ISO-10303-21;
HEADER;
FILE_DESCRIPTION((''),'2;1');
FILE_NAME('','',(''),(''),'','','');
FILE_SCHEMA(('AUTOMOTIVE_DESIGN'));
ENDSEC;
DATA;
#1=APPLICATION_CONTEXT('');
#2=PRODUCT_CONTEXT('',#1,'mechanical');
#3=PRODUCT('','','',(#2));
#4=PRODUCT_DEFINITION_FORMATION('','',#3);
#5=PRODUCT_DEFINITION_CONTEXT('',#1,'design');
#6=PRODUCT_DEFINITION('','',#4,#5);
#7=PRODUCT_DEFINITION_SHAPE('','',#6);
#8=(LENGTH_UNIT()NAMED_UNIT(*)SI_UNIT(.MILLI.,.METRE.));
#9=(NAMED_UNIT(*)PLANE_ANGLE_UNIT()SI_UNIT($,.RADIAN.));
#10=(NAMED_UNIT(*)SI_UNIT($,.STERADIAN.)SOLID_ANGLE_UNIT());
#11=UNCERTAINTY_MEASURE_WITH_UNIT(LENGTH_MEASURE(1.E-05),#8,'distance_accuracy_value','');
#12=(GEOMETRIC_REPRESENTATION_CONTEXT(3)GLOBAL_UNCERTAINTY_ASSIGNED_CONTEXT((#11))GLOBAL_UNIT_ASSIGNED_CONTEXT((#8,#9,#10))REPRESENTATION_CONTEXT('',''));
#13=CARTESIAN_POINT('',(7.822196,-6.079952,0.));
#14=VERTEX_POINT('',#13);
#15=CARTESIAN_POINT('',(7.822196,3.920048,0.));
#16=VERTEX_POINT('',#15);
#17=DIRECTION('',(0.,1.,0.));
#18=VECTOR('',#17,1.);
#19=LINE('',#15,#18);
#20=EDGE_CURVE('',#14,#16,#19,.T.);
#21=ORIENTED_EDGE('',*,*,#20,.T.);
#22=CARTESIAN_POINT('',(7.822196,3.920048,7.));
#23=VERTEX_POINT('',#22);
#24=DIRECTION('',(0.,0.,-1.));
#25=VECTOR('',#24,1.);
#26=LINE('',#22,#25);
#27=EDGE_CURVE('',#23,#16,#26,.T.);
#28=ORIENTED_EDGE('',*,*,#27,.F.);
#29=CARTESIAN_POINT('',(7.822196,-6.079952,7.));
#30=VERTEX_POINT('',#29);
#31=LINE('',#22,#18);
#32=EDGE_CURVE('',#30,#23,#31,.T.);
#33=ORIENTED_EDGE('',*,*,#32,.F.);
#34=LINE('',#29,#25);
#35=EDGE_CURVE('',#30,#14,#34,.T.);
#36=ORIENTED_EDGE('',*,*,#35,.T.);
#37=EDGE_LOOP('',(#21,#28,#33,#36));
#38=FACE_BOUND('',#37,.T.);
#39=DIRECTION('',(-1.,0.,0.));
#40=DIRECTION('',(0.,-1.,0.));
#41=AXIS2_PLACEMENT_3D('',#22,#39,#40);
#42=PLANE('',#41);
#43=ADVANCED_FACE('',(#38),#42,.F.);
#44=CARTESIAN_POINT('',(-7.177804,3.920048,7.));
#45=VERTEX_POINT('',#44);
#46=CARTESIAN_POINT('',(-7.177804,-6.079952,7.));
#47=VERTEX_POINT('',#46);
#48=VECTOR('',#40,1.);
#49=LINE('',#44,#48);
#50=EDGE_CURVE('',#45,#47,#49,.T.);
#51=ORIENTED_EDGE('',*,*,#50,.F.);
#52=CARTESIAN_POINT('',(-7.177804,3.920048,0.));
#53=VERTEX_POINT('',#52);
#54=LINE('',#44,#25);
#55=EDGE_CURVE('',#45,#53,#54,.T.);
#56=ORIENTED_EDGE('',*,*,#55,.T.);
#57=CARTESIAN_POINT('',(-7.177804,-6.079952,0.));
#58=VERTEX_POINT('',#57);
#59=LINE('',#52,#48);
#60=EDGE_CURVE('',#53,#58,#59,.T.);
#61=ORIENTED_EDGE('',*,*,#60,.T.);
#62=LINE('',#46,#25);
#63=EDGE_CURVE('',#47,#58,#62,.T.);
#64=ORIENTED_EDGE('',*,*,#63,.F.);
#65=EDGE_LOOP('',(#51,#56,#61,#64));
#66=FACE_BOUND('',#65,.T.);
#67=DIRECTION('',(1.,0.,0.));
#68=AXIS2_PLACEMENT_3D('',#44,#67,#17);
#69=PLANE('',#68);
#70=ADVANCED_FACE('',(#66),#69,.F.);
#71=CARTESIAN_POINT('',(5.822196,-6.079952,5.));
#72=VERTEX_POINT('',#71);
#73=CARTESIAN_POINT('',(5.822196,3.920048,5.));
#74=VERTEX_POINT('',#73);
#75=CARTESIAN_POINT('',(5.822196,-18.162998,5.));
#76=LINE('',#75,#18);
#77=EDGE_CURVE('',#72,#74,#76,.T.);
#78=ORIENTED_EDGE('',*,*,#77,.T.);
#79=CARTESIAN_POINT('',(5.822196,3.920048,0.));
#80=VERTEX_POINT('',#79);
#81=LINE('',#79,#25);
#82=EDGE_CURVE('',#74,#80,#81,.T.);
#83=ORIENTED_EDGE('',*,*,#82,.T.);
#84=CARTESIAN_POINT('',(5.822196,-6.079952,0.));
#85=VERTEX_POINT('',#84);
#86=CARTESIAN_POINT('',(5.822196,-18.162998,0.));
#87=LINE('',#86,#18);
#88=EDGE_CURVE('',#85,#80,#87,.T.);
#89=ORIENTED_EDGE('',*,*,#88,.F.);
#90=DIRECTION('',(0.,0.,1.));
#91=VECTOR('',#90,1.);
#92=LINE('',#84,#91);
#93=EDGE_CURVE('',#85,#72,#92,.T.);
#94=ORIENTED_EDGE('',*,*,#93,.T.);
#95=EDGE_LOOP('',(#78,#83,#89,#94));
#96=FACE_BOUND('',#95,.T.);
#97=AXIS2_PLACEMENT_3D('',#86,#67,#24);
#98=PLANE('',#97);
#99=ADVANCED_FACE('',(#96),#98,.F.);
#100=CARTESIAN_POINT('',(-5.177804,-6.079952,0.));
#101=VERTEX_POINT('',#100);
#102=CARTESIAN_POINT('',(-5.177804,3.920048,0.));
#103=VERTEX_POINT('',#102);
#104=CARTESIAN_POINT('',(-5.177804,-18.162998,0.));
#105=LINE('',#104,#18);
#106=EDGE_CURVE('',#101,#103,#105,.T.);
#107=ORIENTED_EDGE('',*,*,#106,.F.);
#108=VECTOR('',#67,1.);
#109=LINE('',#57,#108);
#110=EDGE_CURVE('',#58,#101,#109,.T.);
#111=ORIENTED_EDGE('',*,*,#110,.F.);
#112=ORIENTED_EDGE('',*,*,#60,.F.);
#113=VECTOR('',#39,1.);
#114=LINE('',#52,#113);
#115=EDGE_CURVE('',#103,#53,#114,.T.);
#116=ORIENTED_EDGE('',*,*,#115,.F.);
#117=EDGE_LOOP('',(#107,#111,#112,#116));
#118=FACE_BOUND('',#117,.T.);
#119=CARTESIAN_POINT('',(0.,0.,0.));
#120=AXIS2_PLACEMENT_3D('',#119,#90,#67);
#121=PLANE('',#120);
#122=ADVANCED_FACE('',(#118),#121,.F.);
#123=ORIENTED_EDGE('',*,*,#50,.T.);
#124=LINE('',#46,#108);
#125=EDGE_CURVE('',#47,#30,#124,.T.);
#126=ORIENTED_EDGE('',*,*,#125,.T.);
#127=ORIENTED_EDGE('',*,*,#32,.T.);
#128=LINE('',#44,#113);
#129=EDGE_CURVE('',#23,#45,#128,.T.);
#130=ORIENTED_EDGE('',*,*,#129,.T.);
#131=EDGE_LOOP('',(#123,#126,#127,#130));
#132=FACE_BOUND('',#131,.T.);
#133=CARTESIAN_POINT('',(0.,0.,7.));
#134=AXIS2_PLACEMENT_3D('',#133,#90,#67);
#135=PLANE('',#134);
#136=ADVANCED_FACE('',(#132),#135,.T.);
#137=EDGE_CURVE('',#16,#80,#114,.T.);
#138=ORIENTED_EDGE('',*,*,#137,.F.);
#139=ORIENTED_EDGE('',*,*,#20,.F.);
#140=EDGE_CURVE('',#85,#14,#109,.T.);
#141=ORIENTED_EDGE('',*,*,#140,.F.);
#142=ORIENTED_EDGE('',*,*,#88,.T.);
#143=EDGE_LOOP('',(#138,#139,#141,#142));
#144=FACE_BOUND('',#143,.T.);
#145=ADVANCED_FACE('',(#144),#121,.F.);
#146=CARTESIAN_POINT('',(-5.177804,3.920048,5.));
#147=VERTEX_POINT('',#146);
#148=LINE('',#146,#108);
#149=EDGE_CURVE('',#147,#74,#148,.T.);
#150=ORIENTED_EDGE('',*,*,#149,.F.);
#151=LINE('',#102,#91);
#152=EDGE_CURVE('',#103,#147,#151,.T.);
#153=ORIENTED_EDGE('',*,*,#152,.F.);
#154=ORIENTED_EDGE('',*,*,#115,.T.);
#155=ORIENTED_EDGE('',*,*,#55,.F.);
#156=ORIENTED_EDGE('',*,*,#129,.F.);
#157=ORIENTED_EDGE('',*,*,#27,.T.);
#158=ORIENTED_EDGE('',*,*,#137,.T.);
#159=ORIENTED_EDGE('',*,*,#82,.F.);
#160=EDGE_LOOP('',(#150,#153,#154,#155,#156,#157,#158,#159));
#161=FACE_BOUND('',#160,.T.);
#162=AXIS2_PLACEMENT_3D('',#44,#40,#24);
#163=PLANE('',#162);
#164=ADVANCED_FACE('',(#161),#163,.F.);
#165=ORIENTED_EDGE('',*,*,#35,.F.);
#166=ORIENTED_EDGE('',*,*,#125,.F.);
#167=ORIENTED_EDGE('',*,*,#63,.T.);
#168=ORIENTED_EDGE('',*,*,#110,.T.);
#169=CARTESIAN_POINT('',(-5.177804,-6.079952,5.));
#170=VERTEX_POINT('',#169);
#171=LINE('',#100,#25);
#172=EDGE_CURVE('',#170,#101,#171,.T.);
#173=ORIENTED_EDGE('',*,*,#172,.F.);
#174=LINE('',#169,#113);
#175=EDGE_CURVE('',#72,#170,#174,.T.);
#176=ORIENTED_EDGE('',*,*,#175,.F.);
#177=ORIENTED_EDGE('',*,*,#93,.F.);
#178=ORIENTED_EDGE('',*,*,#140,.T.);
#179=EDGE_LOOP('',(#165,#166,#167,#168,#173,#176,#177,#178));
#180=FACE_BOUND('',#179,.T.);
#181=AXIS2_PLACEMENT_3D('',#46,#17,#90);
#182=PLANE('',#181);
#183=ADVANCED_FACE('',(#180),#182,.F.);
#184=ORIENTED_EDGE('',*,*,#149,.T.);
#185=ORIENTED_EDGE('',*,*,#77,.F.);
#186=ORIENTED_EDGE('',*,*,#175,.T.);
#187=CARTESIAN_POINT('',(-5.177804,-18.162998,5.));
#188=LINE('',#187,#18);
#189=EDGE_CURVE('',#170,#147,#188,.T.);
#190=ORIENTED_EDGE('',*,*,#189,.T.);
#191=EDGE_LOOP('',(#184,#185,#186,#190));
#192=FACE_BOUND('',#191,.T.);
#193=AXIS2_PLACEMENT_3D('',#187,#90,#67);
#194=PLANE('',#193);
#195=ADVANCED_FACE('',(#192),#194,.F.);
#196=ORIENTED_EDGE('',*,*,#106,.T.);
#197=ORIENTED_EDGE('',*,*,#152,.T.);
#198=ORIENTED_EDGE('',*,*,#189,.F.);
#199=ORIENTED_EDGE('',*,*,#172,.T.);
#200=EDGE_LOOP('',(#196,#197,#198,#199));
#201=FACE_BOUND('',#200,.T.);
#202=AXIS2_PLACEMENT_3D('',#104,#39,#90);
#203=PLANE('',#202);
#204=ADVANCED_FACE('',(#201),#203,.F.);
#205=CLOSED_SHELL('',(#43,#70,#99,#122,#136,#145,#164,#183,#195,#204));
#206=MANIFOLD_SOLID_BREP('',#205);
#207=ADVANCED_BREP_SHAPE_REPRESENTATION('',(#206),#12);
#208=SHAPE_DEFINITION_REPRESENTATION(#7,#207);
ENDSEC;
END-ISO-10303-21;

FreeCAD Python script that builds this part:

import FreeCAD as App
import Part
import Sketcher
from FreeCAD import Vector
Q = App.Units.Quantity

doc = App.newDocument("Part")
body = doc.addObject("PartDesign::Body", "Body")

# Sketch on XY plane
sketch1 = body.newObject("Sketcher::SketchObject", "Sketch")
sketch1.AttachmentSupport = (doc.getObject("XY_Plane"), [""])
sketch1.MapMode = "FlatFace"
sketch1.addGeometry([
    Part.LineSegment(Vector(-7, 4, 0), Vector(-7, -6, 0)),
    Part.LineSegment(Vector(-7, -6, 0), Vector(8, -6, 0)),
    Part.LineSegment(Vector(8, -6, 0), Vector(8, 4, 0)),
    Part.LineSegment(Vector(8, 4, 0), Vector(-7, 4, 0)),
], False)
sketch1.addConstraint([
    Sketcher.Constraint("Coincident", 0, 2, 1, 1),
    Sketcher.Constraint("Coincident", 1, 2, 2, 1),
    Sketcher.Constraint("Coincident", 2, 2, 3, 1),
    Sketcher.Constraint("Coincident", 3, 2, 0, 1),
    Sketcher.Constraint("Vertical", 0),
    Sketcher.Constraint("Horizontal", 1),
    Sketcher.Constraint("Vertical", 2),
    Sketcher.Constraint("Horizontal", 3),
    Sketcher.Constraint("DistanceX", 1, 1, 1, 2, Q("15 mm")),
    Sketcher.Constraint("DistanceY", 0, 2, 0, 1, Q("10 mm")),
    Sketcher.Constraint("DistanceX", 0, 2, -1, 1, Q("7.177804 mm")),
    Sketcher.Constraint("DistanceY", 0, 2, -1, 1, Q("6.079952 mm")),
])
pad1 = body.newObject("PartDesign::Pad", "Pad")
pad1.Profile = sketch1
pad1.Length = 7

# Sketch on XZ plane
sketch2 = body.newObject("Sketcher::SketchObject", "Sketch001")
sketch2.AttachmentSupport = (doc.getObject("XZ_Plane"), [""])
sketch2.MapMode = "FlatFace"
sketch2.AttachmentOffset = App.Placement(Vector(0, 0, -3.920048), App.Rotation())
sketch2.addGeometry([
    Part.LineSegment(Vector(-5, 0, 0), Vector(-5, 5, 0)),
    Part.LineSegment(Vector(-5, 5, 0), Vector(6, 5, 0)),
    Part.LineSegment(Vector(6, 5, 0), Vector(6, 0, 0)),
    Part.LineSegment(Vector(6, 0, 0), Vector(-5, 0, 0)),
], False)
sketch2.addConstraint([
    Sketcher.Constraint("Coincident", 0, 2, 1, 1),
    Sketcher.Constraint("Coincident", 1, 2, 2, 1),
    Sketcher.Constraint("Coincident", 2, 2, 3, 1),
    Sketcher.Constraint("Coincident", 3, 2, 0, 1),
    Sketcher.Constraint("Vertical", 0),
    Sketcher.Constraint("Horizontal", 1),
    Sketcher.Constraint("Vertical", 2),
    Sketcher.Constraint("Horizontal", 3),
    Sketcher.Constraint("PointOnObject", 2, 2, -1),
    Sketcher.Constraint("DistanceX", 1, 1, 1, 2, Q("11 mm")),
    Sketcher.Constraint("DistanceY", 0, 1, 0, 2, Q("5 mm")),
    Sketcher.Constraint("DistanceX", 0, 2, -1, 1, Q("5.177804 mm")),
])
pocket1 = body.newObject("PartDesign::Pocket", "Pocket")
pocket1.Profile = sketch2
pocket1.Length = 10
pocket1.Reversed = True

doc.recompute()
